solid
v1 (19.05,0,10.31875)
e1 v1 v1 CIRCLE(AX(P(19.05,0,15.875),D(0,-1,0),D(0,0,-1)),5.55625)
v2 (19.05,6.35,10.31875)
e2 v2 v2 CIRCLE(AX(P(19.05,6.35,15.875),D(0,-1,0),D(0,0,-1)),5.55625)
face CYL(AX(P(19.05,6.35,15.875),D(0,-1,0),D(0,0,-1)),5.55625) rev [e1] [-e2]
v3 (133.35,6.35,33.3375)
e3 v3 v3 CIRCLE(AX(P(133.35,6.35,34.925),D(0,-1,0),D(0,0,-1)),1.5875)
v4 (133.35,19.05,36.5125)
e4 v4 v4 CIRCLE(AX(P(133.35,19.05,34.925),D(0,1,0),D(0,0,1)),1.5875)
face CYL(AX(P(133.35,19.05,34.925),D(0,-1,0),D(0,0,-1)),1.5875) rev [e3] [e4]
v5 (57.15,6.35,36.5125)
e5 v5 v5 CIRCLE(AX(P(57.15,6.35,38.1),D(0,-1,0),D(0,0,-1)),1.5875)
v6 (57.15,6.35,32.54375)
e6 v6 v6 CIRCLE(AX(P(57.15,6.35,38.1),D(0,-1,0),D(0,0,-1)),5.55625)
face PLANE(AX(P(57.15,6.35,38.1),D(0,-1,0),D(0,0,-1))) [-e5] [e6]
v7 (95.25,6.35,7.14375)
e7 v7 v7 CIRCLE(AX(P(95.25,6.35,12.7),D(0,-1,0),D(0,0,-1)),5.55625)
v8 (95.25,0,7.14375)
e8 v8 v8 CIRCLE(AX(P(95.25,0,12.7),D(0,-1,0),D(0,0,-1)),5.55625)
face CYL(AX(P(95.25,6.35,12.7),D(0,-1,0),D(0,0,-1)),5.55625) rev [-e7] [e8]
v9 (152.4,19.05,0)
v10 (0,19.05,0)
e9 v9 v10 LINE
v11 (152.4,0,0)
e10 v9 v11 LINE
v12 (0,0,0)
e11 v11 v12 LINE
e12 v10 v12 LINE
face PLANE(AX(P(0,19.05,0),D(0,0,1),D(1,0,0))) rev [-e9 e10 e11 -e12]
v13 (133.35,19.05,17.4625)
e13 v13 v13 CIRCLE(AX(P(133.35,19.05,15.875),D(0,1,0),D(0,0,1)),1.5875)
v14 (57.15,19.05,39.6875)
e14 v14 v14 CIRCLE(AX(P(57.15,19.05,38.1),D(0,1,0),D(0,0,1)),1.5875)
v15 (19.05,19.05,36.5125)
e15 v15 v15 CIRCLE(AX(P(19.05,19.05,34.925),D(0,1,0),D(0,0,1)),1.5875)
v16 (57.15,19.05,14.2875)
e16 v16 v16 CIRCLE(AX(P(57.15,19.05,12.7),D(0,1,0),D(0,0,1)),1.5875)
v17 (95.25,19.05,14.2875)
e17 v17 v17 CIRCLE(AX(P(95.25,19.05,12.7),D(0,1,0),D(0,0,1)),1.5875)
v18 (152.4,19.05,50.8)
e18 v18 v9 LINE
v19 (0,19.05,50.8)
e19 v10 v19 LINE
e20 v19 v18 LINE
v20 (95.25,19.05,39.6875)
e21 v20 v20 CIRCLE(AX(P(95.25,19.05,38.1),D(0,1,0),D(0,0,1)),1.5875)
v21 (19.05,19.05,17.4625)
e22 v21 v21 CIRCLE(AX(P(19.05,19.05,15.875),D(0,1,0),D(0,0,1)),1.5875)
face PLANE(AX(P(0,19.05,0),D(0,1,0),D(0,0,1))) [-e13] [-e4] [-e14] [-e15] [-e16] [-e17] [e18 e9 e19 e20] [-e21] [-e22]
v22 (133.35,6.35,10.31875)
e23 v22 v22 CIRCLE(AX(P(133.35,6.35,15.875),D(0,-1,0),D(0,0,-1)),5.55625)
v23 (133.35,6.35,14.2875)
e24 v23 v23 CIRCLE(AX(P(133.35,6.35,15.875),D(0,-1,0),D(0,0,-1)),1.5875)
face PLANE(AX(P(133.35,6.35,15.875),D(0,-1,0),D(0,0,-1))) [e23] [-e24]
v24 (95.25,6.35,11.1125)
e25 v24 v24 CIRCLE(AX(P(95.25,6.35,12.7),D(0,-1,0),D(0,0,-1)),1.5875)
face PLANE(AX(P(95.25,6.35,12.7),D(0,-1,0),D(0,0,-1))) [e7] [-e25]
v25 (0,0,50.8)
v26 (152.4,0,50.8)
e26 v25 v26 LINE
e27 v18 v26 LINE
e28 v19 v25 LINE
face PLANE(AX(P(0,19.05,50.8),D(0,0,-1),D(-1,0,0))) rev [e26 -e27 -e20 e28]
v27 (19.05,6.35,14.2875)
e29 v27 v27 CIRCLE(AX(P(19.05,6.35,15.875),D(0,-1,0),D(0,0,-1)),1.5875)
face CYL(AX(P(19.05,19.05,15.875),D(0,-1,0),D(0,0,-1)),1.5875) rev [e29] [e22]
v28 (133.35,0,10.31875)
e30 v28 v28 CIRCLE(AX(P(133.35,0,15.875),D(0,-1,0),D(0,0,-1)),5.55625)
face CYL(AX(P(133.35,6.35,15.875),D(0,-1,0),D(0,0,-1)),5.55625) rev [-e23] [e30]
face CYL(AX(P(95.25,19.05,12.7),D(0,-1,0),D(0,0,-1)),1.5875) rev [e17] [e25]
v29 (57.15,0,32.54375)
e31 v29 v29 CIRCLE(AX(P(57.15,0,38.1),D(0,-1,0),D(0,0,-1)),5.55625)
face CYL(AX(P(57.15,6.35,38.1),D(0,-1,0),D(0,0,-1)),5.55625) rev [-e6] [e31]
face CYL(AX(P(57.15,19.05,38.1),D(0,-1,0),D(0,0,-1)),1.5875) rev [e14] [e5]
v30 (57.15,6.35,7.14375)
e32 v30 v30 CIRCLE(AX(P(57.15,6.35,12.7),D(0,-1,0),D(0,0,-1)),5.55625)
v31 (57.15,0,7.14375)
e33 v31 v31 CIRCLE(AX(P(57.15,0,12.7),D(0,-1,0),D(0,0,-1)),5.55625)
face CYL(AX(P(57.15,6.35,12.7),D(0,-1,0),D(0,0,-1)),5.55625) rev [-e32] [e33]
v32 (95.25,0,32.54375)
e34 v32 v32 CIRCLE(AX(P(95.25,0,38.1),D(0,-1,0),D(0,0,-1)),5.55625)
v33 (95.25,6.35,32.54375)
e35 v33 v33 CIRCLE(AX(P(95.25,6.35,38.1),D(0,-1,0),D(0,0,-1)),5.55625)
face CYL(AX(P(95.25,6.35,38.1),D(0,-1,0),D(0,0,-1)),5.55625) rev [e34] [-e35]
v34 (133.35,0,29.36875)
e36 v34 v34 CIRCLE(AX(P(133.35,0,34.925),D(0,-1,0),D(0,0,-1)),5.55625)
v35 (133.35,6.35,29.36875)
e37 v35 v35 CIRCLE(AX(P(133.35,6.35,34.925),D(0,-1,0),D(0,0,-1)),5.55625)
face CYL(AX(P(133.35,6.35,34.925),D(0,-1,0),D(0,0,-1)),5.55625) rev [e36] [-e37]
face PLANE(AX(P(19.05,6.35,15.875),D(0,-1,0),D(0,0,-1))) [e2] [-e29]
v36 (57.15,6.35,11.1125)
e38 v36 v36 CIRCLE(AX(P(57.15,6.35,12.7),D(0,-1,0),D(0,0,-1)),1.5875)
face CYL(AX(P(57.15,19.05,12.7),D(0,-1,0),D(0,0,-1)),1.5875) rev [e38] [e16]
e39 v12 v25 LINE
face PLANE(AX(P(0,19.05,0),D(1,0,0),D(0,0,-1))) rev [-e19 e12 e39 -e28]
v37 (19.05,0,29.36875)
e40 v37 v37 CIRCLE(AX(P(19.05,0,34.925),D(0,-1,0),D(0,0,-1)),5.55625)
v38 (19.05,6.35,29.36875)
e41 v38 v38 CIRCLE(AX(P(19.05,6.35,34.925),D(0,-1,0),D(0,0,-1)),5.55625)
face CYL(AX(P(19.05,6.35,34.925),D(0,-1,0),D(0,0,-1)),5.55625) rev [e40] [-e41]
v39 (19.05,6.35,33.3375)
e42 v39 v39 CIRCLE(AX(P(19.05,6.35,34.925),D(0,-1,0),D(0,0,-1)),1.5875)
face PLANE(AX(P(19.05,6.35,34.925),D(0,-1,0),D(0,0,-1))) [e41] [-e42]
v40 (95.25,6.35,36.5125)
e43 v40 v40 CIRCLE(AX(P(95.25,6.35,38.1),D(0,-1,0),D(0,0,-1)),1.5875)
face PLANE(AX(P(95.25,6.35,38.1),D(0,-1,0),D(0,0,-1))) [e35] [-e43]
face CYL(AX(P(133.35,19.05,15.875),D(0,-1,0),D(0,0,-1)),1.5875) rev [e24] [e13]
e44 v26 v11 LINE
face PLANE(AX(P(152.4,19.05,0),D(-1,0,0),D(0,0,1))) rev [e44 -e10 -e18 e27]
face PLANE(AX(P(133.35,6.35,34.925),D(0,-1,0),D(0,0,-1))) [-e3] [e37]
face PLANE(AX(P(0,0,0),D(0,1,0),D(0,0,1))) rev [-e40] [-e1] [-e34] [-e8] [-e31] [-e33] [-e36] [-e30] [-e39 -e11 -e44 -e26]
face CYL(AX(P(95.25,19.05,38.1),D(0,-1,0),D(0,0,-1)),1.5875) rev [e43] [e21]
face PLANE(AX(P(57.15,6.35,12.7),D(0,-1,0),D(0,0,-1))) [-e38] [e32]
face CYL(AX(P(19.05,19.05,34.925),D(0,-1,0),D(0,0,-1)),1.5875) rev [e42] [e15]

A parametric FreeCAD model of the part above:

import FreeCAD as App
import Part
import Sketcher

V = App.Vector
Q = App.Units.Quantity

doc = App.newDocument("Part")
body = doc.addObject("PartDesign::Body", "Body")

# Sketch on XZ plane
sketch1 = body.newObject("Sketcher::SketchObject", "Sketch")
sketch1.AttachmentSupport = (doc.getObject("XZ_Plane"), [""])
sketch1.MapMode = "FlatFace"
sketch1.addGeometry([
    Part.LineSegment(V(0, 0, 0), V(0, 50.8, 0)),  # 0
    Part.LineSegment(V(0, 50.8, 0), V(152.4, 50.8, 0)),  # 1
    Part.LineSegment(V(152.4, 50.8, 0), V(152.4, 0, 0)),  # 2
    Part.LineSegment(V(152.4, 0, 0), V(0, 0, 0)),  # 3
    Part.Circle(V(19.1, 34.9, 0), V(0, 0, 1), 1.6),  # 4
    Part.Circle(V(57.1, 38.1, 0), V(0, 0, 1), 1.6),  # 5
    Part.Circle(V(95.2, 38.1, 0), V(0, 0, 1), 1.6),  # 6
    Part.Circle(V(133.3, 34.9, 0), V(0, 0, 1), 1.6),  # 7
    Part.Circle(V(19.1, 15.9, 0), V(0, 0, 1), 1.6),  # 8
    Part.Circle(V(57.1, 12.7, 0), V(0, 0, 1), 1.6),  # 9
    Part.Circle(V(95.2, 12.7, 0), V(0, 0, 1), 1.6),  # 10
    Part.Circle(V(133.3, 15.9, 0), V(0, 0, 1), 1.6),  # 11
], False)
sketch1.addConstraint([
    Sketcher.Constraint("Coincident", 0, 2, 1, 1),
    Sketcher.Constraint("Coincident", 1, 2, 2, 1),
    Sketcher.Constraint("Coincident", 2, 2, 3, 1),
    Sketcher.Constraint("Coincident", 3, 2, 0, 1),
    Sketcher.Constraint("Vertical", 0),
    Sketcher.Constraint("Horizontal", 1),
    Sketcher.Constraint("Vertical", 2),
    Sketcher.Constraint("Horizontal", 3),
    Sketcher.Constraint("Coincident", 3, 2, -1, 1),
    Sketcher.Constraint("Equal", 4, 5),
    Sketcher.Constraint("Equal", 5, 6),
    Sketcher.Constraint("Equal", 6, 7),
    Sketcher.Constraint("Equal", 7, 8),
    Sketcher.Constraint("Equal", 8, 9),
    Sketcher.Constraint("Equal", 9, 10),
    Sketcher.Constraint("Equal", 10, 11),
    Sketcher.Constraint("Horizontal", 5, 3, 6, 3),
    Sketcher.Constraint("Horizontal", 4, 3, 7, 3),
    Sketcher.Constraint("Horizontal", 9, 3, 10, 3),
    Sketcher.Constraint("Horizontal", 8, 3, 11, 3),
    Sketcher.Constraint("Vertical", 4, 3, 8, 3),
    Sketcher.Constraint("Vertical", 5, 3, 9, 3),
    Sketcher.Constraint("Vertical", 6, 3, 10, 3),
    Sketcher.Constraint("Vertical", 7, 3, 11, 3),
    Sketcher.Constraint("DistanceX", 1, 1, 1, 2, Q("6 in")),
    Sketcher.Constraint("DistanceY", 0, 1, 0, 2, Q("2 in")),
    Sketcher.Constraint("Diameter", 4, Q("0.125 in")),
    Sketcher.Constraint("DistanceX", 4, 3, 6, 3, Q("3 in")),
    Sketcher.Constraint("DistanceX", 5, 3, 7, 3, Q("3 in")),
    Sketcher.Constraint("DistanceY", 9, 3, 5, 3, Q("1 in")),
    Sketcher.Constraint("DistanceY", -1, 1, 5, 3, Q("1.5 in")),
    Sketcher.Constraint("DistanceX", 4, 3, 5, 3, Q("1.5 in")),
    Sketcher.Constraint("DistanceX", -1, 1, 4, 3, Q("0.75 in")),
    Sketcher.Constraint("DistanceY", 8, 3, 4, 3, Q("0.75 in")),
    Sketcher.Constraint("DistanceY", -1, 1, 4, 3, Q("1.375 in")),
])
pad1 = body.newObject("PartDesign::Pad", "Pad")
pad1.Profile = sketch1
pad1.Length = Q("0.75 in")
pad1.Reversed = True

# Sketch on XZ plane
sketch2 = body.newObject("Sketcher::SketchObject", "Sketch001")
sketch2.AttachmentSupport = (doc.getObject("XZ_Plane"), [""])
sketch2.MapMode = "FlatFace"
sketch2.addGeometry([
    Part.Circle(V(19, 35, 0), V(0, 0, 1), 6),  # 0
    Part.Circle(V(19, 16, 0), V(0, 0, 1), 6),  # 1
    Part.Circle(V(57, 38, 0), V(0, 0, 1), 6),  # 2
    Part.Circle(V(57, 13, 0), V(0, 0, 1), 6),  # 3
    Part.Circle(V(95, 38, 0), V(0, 0, 1), 6),  # 4
    Part.Circle(V(95, 13, 0), V(0, 0, 1), 6),  # 5
    Part.Circle(V(133, 16, 0), V(0, 0, 1), 6),  # 6
    Part.Circle(V(133, 35, 0), V(0, 0, 1), 6),  # 7
], False)
sketch2.addConstraint([
    Sketcher.Constraint("Equal", 0, 1),
    Sketcher.Constraint("Equal", 1, 2),
    Sketcher.Constraint("Equal", 2, 3),
    Sketcher.Constraint("Equal", 3, 4),
    Sketcher.Constraint("Equal", 4, 5),
    Sketcher.Constraint("Equal", 5, 6),
    Sketcher.Constraint("Equal", 6, 7),
    Sketcher.Constraint("Horizontal", 2, 3, 4, 3),
    Sketcher.Constraint("Horizontal", 3, 3, 5, 3),
    Sketcher.Constraint("Horizontal", 1, 3, 6, 3),
    Sketcher.Constraint("Horizontal", 0, 3, 7, 3),
    Sketcher.Constraint("Vertical", 0, 3, 1, 3),
    Sketcher.Constraint("Vertical", 2, 3, 3, 3),
    Sketcher.Constraint("Vertical", 4, 3, 5, 3),
    Sketcher.Constraint("Vertical", 6, 3, 7, 3),
    Sketcher.Constraint("Diameter", 0, Q("0.4375 in")),
    Sketcher.Constraint("DistanceY", 3, 3, 2, 3, Q("1 in")),
    Sketcher.Constraint("DistanceX", 0, 3, 4, 3, Q("3 in")),
    Sketcher.Constraint("DistanceX", 3, 3, 6, 3, Q("3 in")),
    Sketcher.Constraint("DistanceY", -1, 1, 2, 3, Q("1.5 in")),
    Sketcher.Constraint("DistanceX", 0, 3, 2, 3, Q("1.5 in")),
    Sketcher.Constraint("DistanceX", -1, 1, 0, 3, Q("0.75 in")),
    Sketcher.Constraint("DistanceY", 1, 3, 0, 3, Q("0.75 in")),
    Sketcher.Constraint("DistanceY", -1, 1, 0, 3, Q("1.375 in")),
])
pocket1 = body.newObject("PartDesign::Pocket", "Pocket")
pocket1.Profile = sketch2
pocket1.Length = Q("0.25 in")

doc.recompute()
